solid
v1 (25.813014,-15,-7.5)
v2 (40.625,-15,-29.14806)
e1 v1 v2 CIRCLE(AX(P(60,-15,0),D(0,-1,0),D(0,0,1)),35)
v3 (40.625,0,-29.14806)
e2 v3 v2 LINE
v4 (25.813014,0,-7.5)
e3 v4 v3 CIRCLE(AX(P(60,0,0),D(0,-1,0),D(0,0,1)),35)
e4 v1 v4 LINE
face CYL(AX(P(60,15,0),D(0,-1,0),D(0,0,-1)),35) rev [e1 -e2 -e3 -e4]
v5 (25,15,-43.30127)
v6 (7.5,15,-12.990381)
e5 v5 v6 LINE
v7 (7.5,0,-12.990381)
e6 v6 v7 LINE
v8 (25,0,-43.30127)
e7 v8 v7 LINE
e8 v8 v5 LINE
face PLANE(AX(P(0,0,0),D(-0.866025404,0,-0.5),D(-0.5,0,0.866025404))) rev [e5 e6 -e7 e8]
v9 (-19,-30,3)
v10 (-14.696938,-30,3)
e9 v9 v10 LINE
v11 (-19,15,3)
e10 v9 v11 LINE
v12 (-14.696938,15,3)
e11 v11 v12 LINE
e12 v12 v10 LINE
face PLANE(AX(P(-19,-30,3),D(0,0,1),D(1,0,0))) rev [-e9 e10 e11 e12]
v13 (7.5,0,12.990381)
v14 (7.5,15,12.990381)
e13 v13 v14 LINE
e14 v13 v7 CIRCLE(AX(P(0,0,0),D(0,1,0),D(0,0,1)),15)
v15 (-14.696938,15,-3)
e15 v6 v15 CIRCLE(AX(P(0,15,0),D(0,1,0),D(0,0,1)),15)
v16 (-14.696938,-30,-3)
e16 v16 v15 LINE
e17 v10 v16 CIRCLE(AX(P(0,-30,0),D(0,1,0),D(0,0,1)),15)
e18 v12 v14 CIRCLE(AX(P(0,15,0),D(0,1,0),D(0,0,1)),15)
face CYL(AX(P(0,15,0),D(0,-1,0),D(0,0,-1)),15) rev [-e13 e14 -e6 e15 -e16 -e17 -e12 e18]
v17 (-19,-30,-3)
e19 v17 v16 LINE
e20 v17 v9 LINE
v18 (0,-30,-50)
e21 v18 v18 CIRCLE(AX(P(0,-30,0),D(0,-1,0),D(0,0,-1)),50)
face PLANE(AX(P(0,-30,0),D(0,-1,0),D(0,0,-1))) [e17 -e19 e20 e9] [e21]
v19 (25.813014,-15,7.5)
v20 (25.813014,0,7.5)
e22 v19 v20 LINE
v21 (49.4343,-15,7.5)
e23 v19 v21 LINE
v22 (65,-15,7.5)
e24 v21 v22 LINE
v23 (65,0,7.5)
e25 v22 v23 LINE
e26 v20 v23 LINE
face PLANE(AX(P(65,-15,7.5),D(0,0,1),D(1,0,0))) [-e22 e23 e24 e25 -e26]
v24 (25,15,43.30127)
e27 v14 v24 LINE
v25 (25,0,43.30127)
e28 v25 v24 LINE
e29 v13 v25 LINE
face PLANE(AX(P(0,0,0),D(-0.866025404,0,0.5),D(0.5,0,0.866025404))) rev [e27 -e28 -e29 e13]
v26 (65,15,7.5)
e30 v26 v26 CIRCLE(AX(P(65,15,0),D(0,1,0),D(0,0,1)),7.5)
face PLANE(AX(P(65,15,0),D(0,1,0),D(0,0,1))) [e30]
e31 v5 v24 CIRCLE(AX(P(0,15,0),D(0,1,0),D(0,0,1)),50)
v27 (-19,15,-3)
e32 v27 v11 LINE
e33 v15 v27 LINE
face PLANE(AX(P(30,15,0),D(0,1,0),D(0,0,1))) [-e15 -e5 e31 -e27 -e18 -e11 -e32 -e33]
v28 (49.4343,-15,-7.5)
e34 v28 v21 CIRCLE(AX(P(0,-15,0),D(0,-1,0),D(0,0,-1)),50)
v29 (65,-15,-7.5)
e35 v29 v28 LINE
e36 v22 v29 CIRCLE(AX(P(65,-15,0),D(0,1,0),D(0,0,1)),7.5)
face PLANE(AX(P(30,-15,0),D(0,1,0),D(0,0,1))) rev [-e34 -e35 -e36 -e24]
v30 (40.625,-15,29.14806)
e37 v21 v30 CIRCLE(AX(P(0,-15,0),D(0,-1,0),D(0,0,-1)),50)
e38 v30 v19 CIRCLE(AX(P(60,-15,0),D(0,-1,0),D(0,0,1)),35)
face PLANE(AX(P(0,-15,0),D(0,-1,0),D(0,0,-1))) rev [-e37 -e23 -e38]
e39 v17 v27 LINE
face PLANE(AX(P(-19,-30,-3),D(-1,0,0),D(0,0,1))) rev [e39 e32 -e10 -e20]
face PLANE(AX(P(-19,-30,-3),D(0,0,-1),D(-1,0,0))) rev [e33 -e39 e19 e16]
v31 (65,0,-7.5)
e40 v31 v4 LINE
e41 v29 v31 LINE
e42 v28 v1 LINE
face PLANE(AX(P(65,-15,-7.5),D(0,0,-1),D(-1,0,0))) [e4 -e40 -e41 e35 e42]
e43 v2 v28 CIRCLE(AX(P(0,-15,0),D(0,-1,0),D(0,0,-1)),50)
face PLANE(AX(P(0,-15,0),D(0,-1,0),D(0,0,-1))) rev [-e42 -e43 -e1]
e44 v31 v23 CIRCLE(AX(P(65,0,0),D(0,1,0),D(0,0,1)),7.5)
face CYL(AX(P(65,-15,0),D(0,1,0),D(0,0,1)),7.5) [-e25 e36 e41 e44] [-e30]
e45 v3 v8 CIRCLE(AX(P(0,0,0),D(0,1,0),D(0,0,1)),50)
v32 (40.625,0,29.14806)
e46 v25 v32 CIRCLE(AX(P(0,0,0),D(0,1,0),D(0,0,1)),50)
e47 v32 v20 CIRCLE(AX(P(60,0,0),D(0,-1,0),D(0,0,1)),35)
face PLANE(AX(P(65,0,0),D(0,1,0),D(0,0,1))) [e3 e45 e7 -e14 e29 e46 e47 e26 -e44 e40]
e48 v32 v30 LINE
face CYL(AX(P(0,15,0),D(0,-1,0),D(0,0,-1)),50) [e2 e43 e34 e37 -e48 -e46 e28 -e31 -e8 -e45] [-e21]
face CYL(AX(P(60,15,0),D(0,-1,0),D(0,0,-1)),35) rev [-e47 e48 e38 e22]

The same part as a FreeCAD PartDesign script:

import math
import FreeCAD as App
import Part
import Sketcher
Q = App.Units.Quantity

doc = App.newDocument("Part")
body = doc.addObject("PartDesign::Body", "Body")

# Sketch on XZ plane
sketch1 = doc.addObject("Sketcher::SketchObject", "Sketch")
body.addObject(sketch1)
sketch1.AttachmentSupport = (doc.XZ_Plane, [""])
sketch1.MapMode = "FlatFace"
sketch1.addGeometry(Part.ArcOfCircle(Part.Circle(App.Vector(0, 0, 0), App.Vector(0, 0, 1), 50), math.radians(36), math.radians(324)), False)
sketch1.addGeometry(Part.ArcOfCircle(Part.Circle(App.Vector(60, 0, 0), App.Vector(0, 0, 1), 35), math.radians(124), math.radians(236)), False)
sketch1.addGeometry(Part.Circle(App.Vector(0, 0, 0), App.Vector(0, 0, 1), 15), False)
sketch1.addConstraint(Sketcher.Constraint("Coincident", 0, 1, 1, 1))
sketch1.addConstraint(Sketcher.Constraint("Coincident", 1, 2, 0, 2))
sketch1.addConstraint(Sketcher.Constraint("Coincident", 0, 3, -1, 1))
sketch1.addConstraint(Sketcher.Constraint("Coincident", 2, 3, -1, 1))
sketch1.addConstraint(Sketcher.Constraint("PointOnObject", 1, 3, -1))
sketch1.addConstraint(Sketcher.Constraint("Diameter", 2, Q("30 mm")))
sketch1.addConstraint(Sketcher.Constraint("Radius", 0, Q("50 mm")))
sketch1.addConstraint(Sketcher.Constraint("Radius", 1, Q("35 mm")))
sketch1.addConstraint(Sketcher.Constraint("DistanceX", -1, 1, 1, 3, Q("60 mm")))
pad1 = doc.addObject("PartDesign::Pad", "Pad")
body.addObject(pad1)
pad1.Profile = sketch1
pad1.Length = 30
pad1.Midplane = True

# Sketch on XZ plane
sketch2 = doc.addObject("Sketcher::SketchObject", "Sketch001")
body.addObject(sketch2)
sketch2.AttachmentSupport = (doc.XZ_Plane, [""])
sketch2.MapMode = "FlatFace"
sketch2.addGeometry(Part.LineSegment(App.Vector(65, -8, 0), App.Vector(26, -8, 0)), False)
sketch2.addGeometry(Part.ArcOfCircle(Part.Circle(App.Vector(60, 0, 0), App.Vector(0, 0, 1), 35), math.radians(168), math.radians(192)), False)
sketch2.addGeometry(Part.LineSegment(App.Vector(26, 8, 0), App.Vector(65, 8, 0)), False)
sketch2.addGeometry(Part.ArcOfCircle(Part.Circle(App.Vector(65, 0, 0), App.Vector(0, 0, 1), 8), math.radians(-90), math.radians(90)), False)
sketch2.addConstraint(Sketcher.Constraint("Coincident", 0, 2, 1, 2))
sketch2.addConstraint(Sketcher.Constraint("Coincident", 1, 1, 2, 1))
sketch2.addConstraint(Sketcher.Constraint("Tangent", 2, 2, 3, 2))
sketch2.addConstraint(Sketcher.Constraint("Tangent", 3, 1, 0, 1))
sketch2.addConstraint(Sketcher.Constraint("Horizontal", 0))
sketch2.addConstraint(Sketcher.Constraint("Horizontal", 2))
sketch2.addConstraint(Sketcher.Constraint("Symmetric", 0, 2, 1, 1, -1))
sketch2.addConstraint(Sketcher.Constraint("Radius", 1, Q("35 mm")))
sketch2.addConstraint(Sketcher.Constraint("Radius", 3, Q("7.5 mm")))
sketch2.addConstraint(Sketcher.Constraint("DistanceX", -1, 1, 1, 3, Q("60 mm")))
sketch2.addConstraint(Sketcher.Constraint("DistanceX", -1, 1, 3, 3, Q("65 mm")))
pad2 = doc.addObject("PartDesign::Pad", "Pad001")
body.addObject(pad2)
pad2.Profile = sketch2
pad2.Length = 15

# Sketch on XZ plane
sketch3 = doc.addObject("Sketcher::SketchObject", "Sketch002")
body.addObject(sketch3)
sketch3.AttachmentSupport = (doc.XZ_Plane, [""])
sketch3.MapMode = "FlatFace"
sketch3.AttachmentOffset = App.Placement(App.Vector(0, 0, -15), App.Rotation())
sketch3.addGeometry(Part.Circle(App.Vector(65, 0, 0), App.Vector(0, 0, 1), 8), False)
sketch3.addConstraint(Sketcher.Constraint("PointOnObject", 0, 3, -1))
sketch3.addConstraint(Sketcher.Constraint("Diameter", 0, Q("15 mm")))
sketch3.addConstraint(Sketcher.Constraint("DistanceX", -1, 1, 0, 3, Q("65 mm")))
pad3 = doc.addObject("PartDesign::Pad", "Pad002")
body.addObject(pad3)
pad3.Profile = sketch3
pad3.Length = 30

# Sketch on XZ plane
sketch4 = doc.addObject("Sketcher::SketchObject", "Sketch003")
body.addObject(sketch4)
sketch4.AttachmentSupport = (doc.XZ_Plane, [""])
sketch4.MapMode = "FlatFace"
sketch4.AttachmentOffset = App.Placement(App.Vector(0, 0, 15), App.Rotation())
sketch4.addGeometry(Part.Circle(App.Vector(0, 0, 0), App.Vector(0, 0, 1), 50), False)
sketch4.addConstraint(Sketcher.Constraint("Coincident", 0, 3, -1, 1))
sketch4.addConstraint(Sketcher.Constraint("Diameter", 0, Q("100 mm")))
pad4 = doc.addObject("PartDesign::Pad", "Pad003")
body.addObject(pad4)
pad4.Profile = sketch4
pad4.Length = 15

# Sketch on XZ plane
sketch5 = doc.addObject("Sketcher::SketchObject", "Sketch004")
body.addObject(sketch5)
sketch5.AttachmentSupport = (doc.XZ_Plane, [""])
sketch5.MapMode = "FlatFace"
sketch5.AttachmentOffset = App.Placement(App.Vector(0, 0, -15), App.Rotation())
sketch5.addGeometry(Part.LineSegment(App.Vector(0, 0, 0), App.Vector(25, 43, 0)), False)
sketch5.addGeometry(Part.ArcOfCircle(Part.Circle(App.Vector(0, 0, 0), App.Vector(0, 0, 1), 50), math.radians(36), math.radians(60)), False)
sketch5.addGeometry(Part.ArcOfCircle(Part.Circle(App.Vector(60, 0, 0), App.Vector(0, 0, 1), 35), math.radians(124), math.radians(236)), False)
sketch5.addGeometry(Part.ArcOfCircle(Part.Circle(App.Vector(0, 0, 0), App.Vector(0, 0, 1), 50), math.radians(-60), math.radians(-36)), False)
sketch5.addGeometry(Part.LineSegment(App.Vector(25, -43, 0), App.Vector(0, 0, 0)), False)
sketch5.addConstraint(Sketcher.Constraint("Coincident", 0, 2, 1, 2))
sketch5.addConstraint(Sketcher.Constraint("Coincident", 1, 1, 2, 1))
sketch5.addConstraint(Sketcher.Constraint("Coincident", 2, 2, 3, 2))
sketch5.addConstraint(Sketcher.Constraint("Coincident", 3, 1, 4, 1))
sketch5.addConstraint(Sketcher.Constraint("Coincident", 4, 2, 0, 1))
sketch5.addConstraint(Sketcher.Constraint("Coincident", 1, 3, -1, 1))
sketch5.addConstraint(Sketcher.Constraint("Coincident", 3, 3, -1, 1))
sketch5.addConstraint(Sketcher.Constraint("Coincident", 4, 2, -1, 1))
sketch5.addConstraint(Sketcher.Constraint("Equal", 1, 3))
sketch5.addConstraint(Sketcher.Constraint("PointOnObject", 2, 3, -1))
sketch5.addConstraint(Sketcher.Constraint("Vertical", 0, 2, 3, 1))
sketch5.addConstraint(Sketcher.Constraint("Radius", 1, Q("50 mm")))
sketch5.addConstraint(Sketcher.Constraint("Radius", 2, Q("35 mm")))
sketch5.addConstraint(Sketcher.Constraint("Angle", 0, Q("60 deg")))
sketch5.addConstraint(Sketcher.Constraint("DistanceX", -1, 1, 2, 3, Q("60 mm")))
pocket1 = doc.addObject("PartDesign::Pocket", "Pocket")
body.addObject(pocket1)
pocket1.Profile = sketch5
pocket1.Length = 15
pocket1.Reversed = True

# Sketch on XZ plane
sketch6 = doc.addObject("Sketcher::SketchObject", "Sketch005")
body.addObject(sketch6)
sketch6.AttachmentSupport = (doc.XZ_Plane, [""])
sketch6.MapMode = "FlatFace"
sketch6.AttachmentOffset = App.Placement(App.Vector(0, 0, 15), App.Rotation())
sketch6.addGeometry(Part.Circle(App.Vector(0, 0, 0), App.Vector(0, 0, 1), 15), False)
sketch6.addConstraint(Sketcher.Constraint("Coincident", 0, 3, -1, 1))
sketch6.addConstraint(Sketcher.Constraint("Diameter", 0, Q("30 mm")))
pocket2 = doc.addObject("PartDesign::Pocket", "Pocket001")
body.addObject(pocket2)
pocket2.Profile = sketch6
pocket2.Type = "ThroughAll"
pocket2.Reversed = True

# Sketch on XZ plane
sketch7 = doc.addObject("Sketcher::SketchObject", "Sketch006")
body.addObject(sketch7)
sketch7.AttachmentSupport = (doc.XZ_Plane, [""])
sketch7.MapMode = "FlatFace"
sketch7.AttachmentOffset = App.Placement(App.Vector(0, 0, -15), App.Rotation())
sketch7.addGeometry(Part.LineSegment(App.Vector(-19, -3, 0), App.Vector(-19, 3, 0)), False)
sketch7.addGeometry(Part.LineSegment(App.Vector(-19, 3, 0), App.Vector(-11, 3, 0)), False)
sketch7.addGeometry(Part.LineSegment(App.Vector(-11, 3, 0), App.Vector(-11, -3, 0)), False)
sketch7.addGeometry(Part.LineSegment(App.Vector(-11, -3, 0), App.Vector(-19, -3, 0)), False)
sketch7.addConstraint(Sketcher.Constraint("Coincident", 0, 2, 1, 1))
sketch7.addConstraint(Sketcher.Constraint("Coincident", 1, 2, 2, 1))
sketch7.addConstraint(Sketcher.Constraint("Coincident", 2, 2, 3, 1))
sketch7.addConstraint(Sketcher.Constraint("Coincident", 3, 2, 0, 1))
sketch7.addConstraint(Sketcher.Constraint("Vertical", 0))
sketch7.addConstraint(Sketcher.Constraint("Horizontal", 1))
sketch7.addConstraint(Sketcher.Constraint("Vertical", 2))
sketch7.addConstraint(Sketcher.Constraint("Horizontal", 3))
sketch7.addConstraint(Sketcher.Constraint("DistanceX", 1, 1, 1, 2, Q("8 mm")))
sketch7.addConstraint(Sketcher.Constraint("DistanceY", 0, 1, 0, 2, Q("6 mm")))
sketch7.addConstraint(Sketcher.Constraint("DistanceX", 0, 2, -1, 1, Q("19 mm")))
sketch7.addConstraint(Sketcher.Constraint("DistanceY", -1, 1, 0, 2, Q("3 mm")))
pocket3 = doc.addObject("PartDesign::Pocket", "Pocket002")
body.addObject(pocket3)
pocket3.Profile = sketch7
pocket3.Type = "ThroughAll"
pocket3.Reversed = True

doc.recompute()
